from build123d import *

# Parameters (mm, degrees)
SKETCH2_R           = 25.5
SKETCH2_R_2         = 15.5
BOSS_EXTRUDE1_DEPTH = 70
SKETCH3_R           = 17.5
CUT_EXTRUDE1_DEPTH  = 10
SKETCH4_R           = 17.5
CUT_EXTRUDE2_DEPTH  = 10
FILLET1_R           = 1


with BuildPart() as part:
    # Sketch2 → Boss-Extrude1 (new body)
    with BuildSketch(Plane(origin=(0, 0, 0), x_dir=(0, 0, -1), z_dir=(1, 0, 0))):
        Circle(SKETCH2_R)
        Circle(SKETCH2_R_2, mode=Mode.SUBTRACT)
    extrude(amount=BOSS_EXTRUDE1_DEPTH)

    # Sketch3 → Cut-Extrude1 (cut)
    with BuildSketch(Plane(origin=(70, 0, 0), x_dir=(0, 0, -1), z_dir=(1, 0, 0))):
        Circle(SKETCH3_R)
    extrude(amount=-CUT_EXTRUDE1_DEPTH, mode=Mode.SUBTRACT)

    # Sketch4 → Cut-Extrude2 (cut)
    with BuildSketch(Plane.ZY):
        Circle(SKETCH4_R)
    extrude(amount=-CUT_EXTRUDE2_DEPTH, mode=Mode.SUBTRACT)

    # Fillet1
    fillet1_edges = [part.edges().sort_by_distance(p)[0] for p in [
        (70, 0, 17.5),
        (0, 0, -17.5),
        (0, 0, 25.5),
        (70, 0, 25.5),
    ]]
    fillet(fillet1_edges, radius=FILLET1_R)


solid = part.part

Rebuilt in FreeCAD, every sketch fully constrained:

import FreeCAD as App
import Part
import Sketcher

V = App.Vector


def edges_at(feature, points):
    """Names of the edges that pass closest to the given points."""
    edges = feature.Shape.Edges
    near = lambda p: min(range(len(edges)), key=lambda i: edges[i].distToShape(Part.Vertex(*p))[0])
    return sorted({f"Edge{near(p) + 1}" for p in points})

doc = App.newDocument("Part")
params = doc.addObject("Spreadsheet::Sheet", "Params")
for row, (alias, value) in enumerate([
    ("sketch1_diameter", "51 mm"),
    ("sketch1_diameter2", "31 mm"),
    ("pad1_length", "70 mm"),
    ("sketch2_diameter", "35 mm"),
    ("pocket1_length", "10 mm"),
    ("sketch3_diameter", "35 mm"),
    ("pocket2_length", "10 mm"),
    ("fillet_radius", "1 mm"),
], start=1):
    params.set(f"A{row}", alias)
    params.set(f"B{row}", "=" + value)
    params.setAlias(f"B{row}", alias)

body = doc.addObject("PartDesign::Body", "Body")

# Sketch on YZ plane
sketch1 = doc.addObject("Sketcher::SketchObject", "Sketch")
body.addObject(sketch1)
sketch1.AttachmentSupport = (doc.YZ_Plane, [""])
sketch1.MapMode = "FlatFace"
sketch1.addGeometry(Part.Circle(V(0, 0, 0), V(0, 0, 1), 25.5), False)
sketch1.addGeometry(Part.Circle(V(0, 0, 0), V(0, 0, 1), 15.5), False)
sketch1.addConstraint(Sketcher.Constraint("Coincident", 0, 3, -1, 1))
sketch1.addConstraint(Sketcher.Constraint("Coincident", 1, 3, -1, 1))
sketch1.addConstraint(Sketcher.Constraint("Diameter", 0, 51.0))
sketch1.addConstraint(Sketcher.Constraint("Diameter", 1, 31.0))
sketch1.setExpression("Constraints[2]", "Params.sketch1_diameter")
sketch1.setExpression("Constraints[3]", "Params.sketch1_diameter2")
pad1 = doc.addObject("PartDesign::Pad", "Pad")
body.addObject(pad1)
pad1.Profile = sketch1
pad1.setExpression("Length", "Params.pad1_length")

# Sketch on YZ plane
sketch2 = doc.addObject("Sketcher::SketchObject", "Sketch001")
body.addObject(sketch2)
sketch2.AttachmentSupport = (doc.YZ_Plane, [""])
sketch2.MapMode = "FlatFace"
sketch2.AttachmentOffset = App.Placement(V(0, 0, 70), App.Rotation())
sketch2.addGeometry(Part.Circle(V(0, 0, 0), V(0, 0, 1), 17.5), False)
sketch2.addConstraint(Sketcher.Constraint("Coincident", 0, 3, -1, 1))
sketch2.addConstraint(Sketcher.Constraint("Diameter", 0, 35.0))
sketch2.setExpression("Constraints[1]", "Params.sketch2_diameter")
pocket1 = doc.addObject("PartDesign::Pocket", "Pocket")
body.addObject(pocket1)
pocket1.Profile = sketch2
pocket1.setExpression("Length", "Params.pocket1_length")

# Sketch on YZ plane
sketch3 = doc.addObject("Sketcher::SketchObject", "Sketch002")
body.addObject(sketch3)
sketch3.AttachmentSupport = (doc.YZ_Plane, [""])
sketch3.MapMode = "FlatFace"
sketch3.addGeometry(Part.Circle(V(0, 0, 0), V(0, 0, 1), 17.5), False)
sketch3.addConstraint(Sketcher.Constraint("Coincident", 0, 3, -1, 1))
sketch3.addConstraint(Sketcher.Constraint("Diameter", 0, 35.0))
sketch3.setExpression("Constraints[1]", "Params.sketch3_diameter")
pocket2 = doc.addObject("PartDesign::Pocket", "Pocket001")
body.addObject(pocket2)
pocket2.Profile = sketch3
pocket2.setExpression("Length", "Params.pocket2_length")
pocket2.Reversed = True
doc.recompute()

fillet = doc.addObject("PartDesign::Fillet", "Fillet")
body.addObject(fillet)
fillet.Base = (pocket2, edges_at(pocket2, [
    (70, 0, 17.5),
    (0, 0, -17.5),
    (0, 0, 25.5),
    (70, 0, 25.5),
]))
fillet.setExpression("Radius", "Params.fillet_radius")

doc.recompute()
